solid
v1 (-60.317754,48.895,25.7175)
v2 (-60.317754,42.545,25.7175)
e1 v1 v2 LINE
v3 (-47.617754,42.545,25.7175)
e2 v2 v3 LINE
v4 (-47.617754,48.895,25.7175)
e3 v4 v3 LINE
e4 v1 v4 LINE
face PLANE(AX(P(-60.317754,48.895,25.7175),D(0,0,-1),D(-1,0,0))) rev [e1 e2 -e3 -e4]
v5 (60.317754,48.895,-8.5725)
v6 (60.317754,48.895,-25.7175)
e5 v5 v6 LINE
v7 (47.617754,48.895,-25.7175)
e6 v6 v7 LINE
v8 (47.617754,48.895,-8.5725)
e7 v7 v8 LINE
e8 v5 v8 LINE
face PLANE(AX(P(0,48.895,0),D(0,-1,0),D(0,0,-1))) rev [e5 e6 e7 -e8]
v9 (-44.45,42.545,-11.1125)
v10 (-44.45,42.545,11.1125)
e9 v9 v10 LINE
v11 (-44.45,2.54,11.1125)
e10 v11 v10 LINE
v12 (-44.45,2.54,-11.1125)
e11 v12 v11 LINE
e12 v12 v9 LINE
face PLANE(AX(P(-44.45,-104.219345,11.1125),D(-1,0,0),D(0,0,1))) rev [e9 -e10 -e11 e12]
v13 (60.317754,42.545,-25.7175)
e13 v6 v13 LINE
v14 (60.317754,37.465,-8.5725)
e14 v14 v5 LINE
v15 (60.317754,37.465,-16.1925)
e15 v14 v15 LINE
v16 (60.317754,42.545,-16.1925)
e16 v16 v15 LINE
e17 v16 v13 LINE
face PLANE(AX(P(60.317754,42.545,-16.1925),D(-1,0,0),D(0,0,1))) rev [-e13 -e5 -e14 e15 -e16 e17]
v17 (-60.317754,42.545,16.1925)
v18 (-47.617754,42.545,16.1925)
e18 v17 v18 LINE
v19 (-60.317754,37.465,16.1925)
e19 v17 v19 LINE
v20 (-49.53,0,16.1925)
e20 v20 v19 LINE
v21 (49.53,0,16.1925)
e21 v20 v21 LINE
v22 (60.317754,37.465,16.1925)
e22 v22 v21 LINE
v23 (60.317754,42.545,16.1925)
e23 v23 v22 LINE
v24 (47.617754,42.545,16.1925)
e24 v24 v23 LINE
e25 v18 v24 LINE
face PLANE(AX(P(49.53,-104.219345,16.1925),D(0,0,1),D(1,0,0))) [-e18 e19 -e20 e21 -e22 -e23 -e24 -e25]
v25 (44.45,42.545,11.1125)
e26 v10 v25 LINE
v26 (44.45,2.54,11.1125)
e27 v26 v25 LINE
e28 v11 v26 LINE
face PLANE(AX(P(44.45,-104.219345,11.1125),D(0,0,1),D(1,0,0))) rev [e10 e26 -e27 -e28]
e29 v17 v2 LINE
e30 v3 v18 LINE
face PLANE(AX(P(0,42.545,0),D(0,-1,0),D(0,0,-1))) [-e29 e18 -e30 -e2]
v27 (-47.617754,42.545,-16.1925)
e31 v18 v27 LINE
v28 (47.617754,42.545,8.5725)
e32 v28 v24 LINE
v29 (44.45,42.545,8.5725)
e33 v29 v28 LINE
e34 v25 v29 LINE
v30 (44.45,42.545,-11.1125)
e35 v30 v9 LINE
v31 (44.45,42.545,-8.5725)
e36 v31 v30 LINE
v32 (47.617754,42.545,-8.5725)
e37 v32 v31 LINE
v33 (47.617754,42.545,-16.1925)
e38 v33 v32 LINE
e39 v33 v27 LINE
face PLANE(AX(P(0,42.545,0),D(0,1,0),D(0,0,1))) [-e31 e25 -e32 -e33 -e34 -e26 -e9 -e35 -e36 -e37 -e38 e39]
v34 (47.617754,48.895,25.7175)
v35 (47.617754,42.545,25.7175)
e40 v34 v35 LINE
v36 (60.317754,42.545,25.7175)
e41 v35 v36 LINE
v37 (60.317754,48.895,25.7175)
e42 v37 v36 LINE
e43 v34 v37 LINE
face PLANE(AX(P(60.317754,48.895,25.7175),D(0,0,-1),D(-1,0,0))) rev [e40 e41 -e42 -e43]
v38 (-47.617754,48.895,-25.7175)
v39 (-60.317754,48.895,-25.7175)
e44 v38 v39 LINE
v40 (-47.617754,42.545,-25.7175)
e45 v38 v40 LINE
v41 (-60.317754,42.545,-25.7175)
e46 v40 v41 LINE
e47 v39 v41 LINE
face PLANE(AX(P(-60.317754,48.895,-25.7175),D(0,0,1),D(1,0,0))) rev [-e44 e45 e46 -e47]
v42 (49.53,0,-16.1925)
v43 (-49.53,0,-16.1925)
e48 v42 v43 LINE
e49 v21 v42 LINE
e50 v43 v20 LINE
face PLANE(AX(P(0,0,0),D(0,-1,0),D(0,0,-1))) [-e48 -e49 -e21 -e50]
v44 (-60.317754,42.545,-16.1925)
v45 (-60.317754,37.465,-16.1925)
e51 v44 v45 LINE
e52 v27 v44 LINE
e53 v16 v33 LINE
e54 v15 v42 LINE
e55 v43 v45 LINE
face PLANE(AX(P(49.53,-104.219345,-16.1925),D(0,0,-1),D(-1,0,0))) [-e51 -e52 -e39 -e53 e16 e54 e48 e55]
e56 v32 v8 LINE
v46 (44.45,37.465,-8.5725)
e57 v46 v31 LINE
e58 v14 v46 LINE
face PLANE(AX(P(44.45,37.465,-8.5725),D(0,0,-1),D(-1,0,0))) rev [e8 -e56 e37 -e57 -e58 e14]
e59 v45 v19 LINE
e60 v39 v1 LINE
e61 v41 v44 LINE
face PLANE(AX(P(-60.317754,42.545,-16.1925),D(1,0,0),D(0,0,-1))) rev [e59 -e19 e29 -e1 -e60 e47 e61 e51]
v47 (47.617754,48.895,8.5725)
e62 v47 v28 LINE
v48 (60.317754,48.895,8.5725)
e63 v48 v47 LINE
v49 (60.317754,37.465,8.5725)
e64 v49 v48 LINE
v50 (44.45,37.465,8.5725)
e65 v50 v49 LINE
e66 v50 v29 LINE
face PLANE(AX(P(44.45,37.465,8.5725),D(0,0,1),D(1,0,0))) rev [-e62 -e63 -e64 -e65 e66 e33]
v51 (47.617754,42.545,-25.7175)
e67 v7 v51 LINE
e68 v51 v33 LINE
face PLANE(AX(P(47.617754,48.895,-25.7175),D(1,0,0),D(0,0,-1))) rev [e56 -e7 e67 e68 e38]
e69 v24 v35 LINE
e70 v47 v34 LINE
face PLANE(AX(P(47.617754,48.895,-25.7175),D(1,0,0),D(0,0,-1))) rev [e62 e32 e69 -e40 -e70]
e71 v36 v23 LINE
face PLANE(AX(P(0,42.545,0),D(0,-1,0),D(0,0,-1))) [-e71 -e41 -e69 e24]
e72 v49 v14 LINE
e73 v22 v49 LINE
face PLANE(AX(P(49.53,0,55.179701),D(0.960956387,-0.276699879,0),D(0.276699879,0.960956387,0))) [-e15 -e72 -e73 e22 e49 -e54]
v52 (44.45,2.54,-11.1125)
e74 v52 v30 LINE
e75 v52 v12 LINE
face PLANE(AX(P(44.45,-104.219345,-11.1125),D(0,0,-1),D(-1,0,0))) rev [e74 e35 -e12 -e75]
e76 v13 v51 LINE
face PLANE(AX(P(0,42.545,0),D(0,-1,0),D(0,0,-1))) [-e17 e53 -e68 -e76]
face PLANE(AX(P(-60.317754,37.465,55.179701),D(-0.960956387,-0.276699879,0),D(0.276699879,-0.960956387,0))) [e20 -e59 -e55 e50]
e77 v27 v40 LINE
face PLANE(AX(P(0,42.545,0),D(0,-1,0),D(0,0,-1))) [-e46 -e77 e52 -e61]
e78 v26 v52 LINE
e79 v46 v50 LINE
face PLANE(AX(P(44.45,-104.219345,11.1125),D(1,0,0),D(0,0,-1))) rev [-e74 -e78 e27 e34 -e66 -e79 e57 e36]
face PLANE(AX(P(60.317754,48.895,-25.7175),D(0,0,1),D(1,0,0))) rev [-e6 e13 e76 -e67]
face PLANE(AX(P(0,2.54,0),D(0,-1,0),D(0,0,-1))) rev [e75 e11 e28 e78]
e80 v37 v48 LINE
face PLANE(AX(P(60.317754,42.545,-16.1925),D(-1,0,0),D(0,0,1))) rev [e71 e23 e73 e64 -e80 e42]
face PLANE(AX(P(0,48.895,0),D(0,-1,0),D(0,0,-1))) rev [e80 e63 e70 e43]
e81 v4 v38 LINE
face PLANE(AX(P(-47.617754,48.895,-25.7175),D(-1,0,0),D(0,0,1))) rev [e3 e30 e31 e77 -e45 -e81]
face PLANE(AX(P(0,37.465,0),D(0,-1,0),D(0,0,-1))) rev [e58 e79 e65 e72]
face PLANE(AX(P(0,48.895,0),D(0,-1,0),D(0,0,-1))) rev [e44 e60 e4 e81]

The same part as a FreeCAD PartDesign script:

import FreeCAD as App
import Part
import Sketcher
from FreeCAD import Vector
Q = App.Units.Quantity

doc = App.newDocument("Part")
params = doc.addObject("Spreadsheet::Sheet", "Params")
for row, (alias, value) in enumerate([
    ("sketch1_width", "3.5 in"),
    ("sketch1_height", "0.875 in"),
    ("pad1_length", "0.1 in"),
    ("sketch2_width", "3.9 in"),
    ("sketch2_width2", "3.5 in"),
    ("sketch2_height", "1.275 in"),
    ("pad2_length", "1.375 in"),
    ("pad2_length2", "0.1 in"),
    ("sketch3_width", "3.5 in"),
    ("sketch3_height", "1.275 in"),
    ("pad3_length", "0.2 in"),
    ("sketch4_width", "0.5 in"),
    ("sketch4_height", "2.025 in"),
    ("pad4_length", "0.25 in"),
    ("sketch5_height", "1.475 in"),
    ("pad5_length", "1.275 in"),
    ("sketch6_height", "0.675 in"),
    ("pocket1_length", "0.45 in"),
], start=1):
    params.set(f"A{row}", alias)
    params.set(f"B{row}", "=" + value)
    params.setAlias(f"B{row}", alias)

body = doc.addObject("PartDesign::Body", "Body")

sketch1 = doc.addObject("Sketcher::SketchObject", "Sketch")
body.addObject(sketch1)
sketch1.AttachmentSupport = (doc.XZ_Plane, [""])
sketch1.MapMode = "FlatFace"
sketch1.addGeometry(Part.LineSegment(Vector(-44.45, -11.1125, 0), Vector(-44.45, 11.1125, 0)), False)
sketch1.addGeometry(Part.LineSegment(Vector(-44.45, 11.1125, 0), Vector(44.45, 11.1125, 0)), False)
sketch1.addGeometry(Part.LineSegment(Vector(44.45, 11.1125, 0), Vector(44.45, -11.1125, 0)), False)
sketch1.addGeometry(Part.LineSegment(Vector(44.45, -11.1125, 0), Vector(-44.45, -11.1125, 0)), False)
sketch1.addConstraint(Sketcher.Constraint("Coincident", 0, 2, 1, 1))
sketch1.addConstraint(Sketcher.Constraint("Coincident", 1, 2, 2, 1))
sketch1.addConstraint(Sketcher.Constraint("Coincident", 2, 2, 3, 1))
sketch1.addConstraint(Sketcher.Constraint("Coincident", 3, 2, 0, 1))
sketch1.addConstraint(Sketcher.Constraint("Vertical", 0))
sketch1.addConstraint(Sketcher.Constraint("Horizontal", 1))
sketch1.addConstraint(Sketcher.Constraint("Vertical", 2))
sketch1.addConstraint(Sketcher.Constraint("Horizontal", 3))
sketch1.addConstraint(Sketcher.Constraint("Symmetric", 0, 2, 2, 2, -1, 1))
sketch1.addConstraint(Sketcher.Constraint("DistanceX", 1, 1, 1, 2, Q("3.5 in")))
sketch1.addConstraint(Sketcher.Constraint("DistanceY", 0, 1, 0, 2, Q("0.875 in")))
sketch1.setExpression("Constraints[9]", "Params.sketch1_width")
sketch1.setExpression("Constraints[10]", "Params.sketch1_height")
pad1 = doc.addObject("PartDesign::Pad", "Pad")
body.addObject(pad1)
pad1.Profile = sketch1
pad1.setExpression("Length", "Params.pad1_length")
pad1.Reversed = True

sketch2 = doc.addObject("Sketcher::SketchObject", "Sketch001")
body.addObject(sketch2)
sketch2.AttachmentSupport = (doc.XZ_Plane, [""])
sketch2.MapMode = "FlatFace"
sketch2.AttachmentOffset = App.Placement(Vector(0, 0, -0.1 * 25.4), App.Rotation())
sketch2.addGeometry(Part.LineSegment(Vector(-49.53, -16.1925, 0), Vector(-49.53, 16.1925, 0)), False)
sketch2.addGeometry(Part.LineSegment(Vector(-49.53, 16.1925, 0), Vector(49.53, 16.1925, 0)), False)
sketch2.addGeometry(Part.LineSegment(Vector(49.53, 16.1925, 0), Vector(49.53, -16.1925, 0)), False)
sketch2.addGeometry(Part.LineSegment(Vector(49.53, -16.1925, 0), Vector(-49.53, -16.1925, 0)), False)
sketch2.addGeometry(Part.LineSegment(Vector(44.45, 11.1125, 0), Vector(-44.45, 11.1125, 0)), False)
sketch2.addGeometry(Part.LineSegment(Vector(-44.45, 11.1125, 0), Vector(-44.45, -11.1125, 0)), False)
sketch2.addGeometry(Part.LineSegment(Vector(-44.45, -11.1125, 0), Vector(44.45, -11.1125, 0)), False)
sketch2.addGeometry(Part.LineSegment(Vector(44.45, -11.1125, 0), Vector(44.45, 11.1125, 0)), False)
sketch2.addConstraint(Sketcher.Constraint("Coincident", 0, 2, 1, 1))
sketch2.addConstraint(Sketcher.Constraint("Coincident", 1, 2, 2, 1))
sketch2.addConstraint(Sketcher.Constraint("Coincident", 2, 2, 3, 1))
sketch2.addConstraint(Sketcher.Constraint("Coincident", 3, 2, 0, 1))
sketch2.addConstraint(Sketcher.Constraint("Coincident", 4, 2, 5, 1))
sketch2.addConstraint(Sketcher.Constraint("Coincident", 5, 2, 6, 1))
sketch2.addConstraint(Sketcher.Constraint("Coincident", 6, 2, 7, 1))
sketch2.addConstraint(Sketcher.Constraint("Coincident", 7, 2, 4, 1))
sketch2.addConstraint(Sketcher.Constraint("Vertical", 0))
sketch2.addConstraint(Sketcher.Constraint("Horizontal", 1))
sketch2.addConstraint(Sketcher.Constraint("Vertical", 2))
sketch2.addConstraint(Sketcher.Constraint("Horizontal", 3))
sketch2.addConstraint(Sketcher.Constraint("Horizontal", 4))
sketch2.addConstraint(Sketcher.Constraint("Vertical", 5))
sketch2.addConstraint(Sketcher.Constraint("Horizontal", 6))
sketch2.addConstraint(Sketcher.Constraint("Vertical", 7))
sketch2.addConstraint(Sketcher.Constraint("Symmetric", 0, 2, 2, 2, -1, 1))
sketch2.addConstraint(Sketcher.Constraint("Symmetric", 4, 2, 6, 2, -1, 1))
sketch2.addConstraint(Sketcher.Constraint("DistanceX", 1, 1, 1, 2, Q("3.9 in")))
sketch2.addConstraint(Sketcher.Constraint("DistanceX", 4, 2, 4, 1, Q("3.5 in")))
sketch2.addConstraint(Sketcher.Constraint("DistanceY", 4, 2, 0, 2, Q("0.2 in")))
sketch2.addConstraint(Sketcher.Constraint("DistanceY", 0, 1, 0, 2, Q("1.275 in")))
sketch2.setExpression("Constraints[18]", "Params.sketch2_width")
sketch2.setExpression("Constraints[19]", "Params.sketch2_width2")
sketch2.setExpression("Constraints[21]", "Params.sketch2_height")
pad2 = doc.addObject("PartDesign::Pad", "Pad001")
body.addObject(pad2)
pad2.Profile = sketch2
pad2.Type = "TwoLengths"
pad2.setExpression("Length", "Params.pad2_length")
pad2.setExpression("Length2", "Params.pad2_length2")
pad2.Reversed = True

sketch3 = doc.addObject("Sketcher::SketchObject", "Sketch002")
body.addObject(sketch3)
sketch3.AttachmentSupport = (doc.XZ_Plane, [""])
sketch3.MapMode = "FlatFace"
sketch3.AttachmentOffset = App.Placement(Vector(0, 0, -1.475 * 25.4), App.Rotation())
sketch3.addGeometry(Part.LineSegment(Vector(-60.317754, -16.1925, 0), Vector(-60.317754, 16.1925, 0)), False)
sketch3.addGeometry(Part.LineSegment(Vector(-60.317754, 16.1925, 0), Vector(60.317754, 16.1925, 0)), False)
sketch3.addGeometry(Part.LineSegment(Vector(60.317754, 16.1925, 0), Vector(60.317754, -16.1925, 0)), False)
sketch3.addGeometry(Part.LineSegment(Vector(60.317754, -16.1925, 0), Vector(-60.317754, -16.1925, 0)), False)
sketch3.addGeometry(Part.LineSegment(Vector(44.45, 11.1125, 0), Vector(-44.45, 11.1125, 0)), False)
sketch3.addGeometry(Part.LineSegment(Vector(-44.45, 11.1125, 0), Vector(-44.45, -11.1125, 0)), False)
sketch3.addGeometry(Part.LineSegment(Vector(-44.45, -11.1125, 0), Vector(44.45, -11.1125, 0)), False)
sketch3.addGeometry(Part.LineSegment(Vector(44.45, -11.1125, 0), Vector(44.45, 11.1125, 0)), False)
sketch3.addConstraint(Sketcher.Constraint("Coincident", 0, 2, 1, 1))
sketch3.addConstraint(Sketcher.Constraint("Coincident", 1, 2, 2, 1))
sketch3.addConstraint(Sketcher.Constraint("Coincident", 2, 2, 3, 1))
sketch3.addConstraint(Sketcher.Constraint("Coincident", 3, 2, 0, 1))
sketch3.addConstraint(Sketcher.Constraint("Coincident", 4, 2, 5, 1))
sketch3.addConstraint(Sketcher.Constraint("Coincident", 5, 2, 6, 1))
sketch3.addConstraint(Sketcher.Constraint("Coincident", 6, 2, 7, 1))
sketch3.addConstraint(Sketcher.Constraint("Coincident", 7, 2, 4, 1))
sketch3.addConstraint(Sketcher.Constraint("Vertical", 0))
sketch3.addConstraint(Sketcher.Constraint("Horizontal", 1))
sketch3.addConstraint(Sketcher.Constraint("Vertical", 2))
sketch3.addConstraint(Sketcher.Constraint("Horizontal", 3))
sketch3.addConstraint(Sketcher.Constraint("Horizontal", 4))
sketch3.addConstraint(Sketcher.Constraint("Vertical", 5))
sketch3.addConstraint(Sketcher.Constraint("Horizontal", 6))
sketch3.addConstraint(Sketcher.Constraint("Vertical", 7))
sketch3.addConstraint(Sketcher.Constraint("Symmetric", 0, 2, 2, 2, -1, 1))
sketch3.addConstraint(Sketcher.Constraint("Symmetric", 4, 2, 6, 2, -1, 1))
sketch3.addConstraint(Sketcher.Constraint("DistanceX", 4, 2, 4, 1, Q("3.5 in")))
sketch3.addConstraint(Sketcher.Constraint("DistanceY", 4, 2, 0, 2, Q("0.2 in")))
sketch3.addConstraint(Sketcher.Constraint("DistanceY", 0, 1, 0, 2, Q("1.275 in")))
sketch3.addConstraint(Sketcher.Constraint("DistanceX", 1, 1, 1, 2, 120.635508))
sketch3.setExpression("Constraints[18]", "Params.sketch3_width")
sketch3.setExpression("Constraints[20]", "Params.sketch3_height")
pad3 = doc.addObject("PartDesign::Pad", "Pad002")
body.addObject(pad3)
pad3.Profile = sketch3
pad3.setExpression("Length", "Params.pad3_length")
pad3.Reversed = True

sketch4 = doc.addObject("Sketcher::SketchObject", "Sketch003")
body.addObject(sketch4)
sketch4.AttachmentSupport = (doc.XZ_Plane, [""])
sketch4.MapMode = "FlatFace"
sketch4.AttachmentOffset = App.Placement(Vector(0, 0, -1.675 * 25.4), App.Rotation())
sketch4.addGeometry(Part.LineSegment(Vector(47.617754, -25.7175, 0), Vector(47.617754, 25.7175, 0)), False)
sketch4.addGeometry(Part.LineSegment(Vector(47.617754, 25.7175, 0), Vector(60.317754, 25.7175, 0)), False)
sketch4.addGeometry(Part.LineSegment(Vector(60.317754, 25.7175, 0), Vector(60.317754, -25.7175, 0)), False)
sketch4.addGeometry(Part.LineSegment(Vector(60.317754, -25.7175, 0), Vector(47.617754, -25.7175, 0)), False)
sketch4.addGeometry(Part.LineSegment(Vector(-60.317754, -25.7175, 0), Vector(-60.317754, 25.7175, 0)), False)
sketch4.addGeometry(Part.LineSegment(Vector(-60.317754, 25.7175, 0), Vector(-47.617754, 25.7175, 0)), False)
sketch4.addGeometry(Part.LineSegment(Vector(-47.617754, 25.7175, 0), Vector(-47.617754, -25.7175, 0)), False)
sketch4.addGeometry(Part.LineSegment(Vector(-47.617754, -25.7175, 0), Vector(-60.317754, -25.7175, 0)), False)
sketch4.addConstraint(Sketcher.Constraint("Coincident", 0, 2, 1, 1))
sketch4.addConstraint(Sketcher.Constraint("Coincident", 1, 2, 2, 1))
sketch4.addConstraint(Sketcher.Constraint("Coincident", 2, 2, 3, 1))
sketch4.addConstraint(Sketcher.Constraint("Coincident", 3, 2, 0, 1))
sketch4.addConstraint(Sketcher.Constraint("Coincident", 4, 2, 5, 1))
sketch4.addConstraint(Sketcher.Constraint("Coincident", 5, 2, 6, 1))
sketch4.addConstraint(Sketcher.Constraint("Coincident", 6, 2, 7, 1))
sketch4.addConstraint(Sketcher.Constraint("Coincident", 7, 2, 4, 1))
sketch4.addConstraint(Sketcher.Constraint("Vertical", 0))
sketch4.addConstraint(Sketcher.Constraint("Horizontal", 1))
sketch4.addConstraint(Sketcher.Constraint("Vertical", 2))
sketch4.addConstraint(Sketcher.Constraint("Horizontal", 3))
sketch4.addConstraint(Sketcher.Constraint("Vertical", 4))
sketch4.addConstraint(Sketcher.Constraint("Horizontal", 5))
sketch4.addConstraint(Sketcher.Constraint("Vertical", 6))
sketch4.addConstraint(Sketcher.Constraint("Horizontal", 7))
sketch4.addConstraint(Sketcher.Constraint("Symmetric", 2, 2, 4, 2, -1, 1))
sketch4.addConstraint(Sketcher.Constraint("Symmetric", 0, 2, 6, 2, -1, 1))
sketch4.addConstraint(Sketcher.Constraint("Horizontal", 1, 2, 4, 2))
sketch4.addConstraint(Sketcher.Constraint("DistanceX", 1, 1, 1, 2, Q("0.5 in")))
sketch4.addConstraint(Sketcher.Constraint("DistanceY", 0, 1, 0, 2, Q("2.025 in")))
sketch4.addConstraint(Sketcher.Constraint("DistanceX", -1, 1, 0, 2, 47.617754))
sketch4.setExpression("Constraints[19]", "Params.sketch4_width")
sketch4.setExpression("Constraints[20]", "Params.sketch4_height")
pad4 = doc.addObject("PartDesign::Pad", "Pad003")
body.addObject(pad4)
pad4.Profile = sketch4
pad4.setExpression("Length", "Params.pad4_length")
pad4.Reversed = True

sketch5 = doc.addObject("Sketcher::SketchObject", "Sketch004")
body.addObject(sketch5)
sketch5.AttachmentSupport = (doc.XY_Plane, [""])
sketch5.MapMode = "FlatFace"
sketch5.AttachmentOffset = App.Placement(Vector(0, 0, -0.6375 * 25.4), App.Rotation())
sketch5.addGeometry(Part.LineSegment(Vector(60.317754, 37.465, 0), Vector(49.53, 0, 0)), False)
sketch5.addGeometry(Part.LineSegment(Vector(49.53, 0, 0), Vector(49.53, 37.465, 0)), False)
sketch5.addGeometry(Part.LineSegment(Vector(49.53, 37.465, 0), Vector(60.317754, 37.465, 0)), False)
sketch5.addGeometry(Part.LineSegment(Vector(-60.317754, 37.465, 0), Vector(-49.53, 37.465, 0)), False)
sketch5.addGeometry(Part.LineSegment(Vector(-49.53, 37.465, 0), Vector(-49.53, 0, 0)), False)
sketch5.addGeometry(Part.LineSegment(Vector(-49.53, 0, 0), Vector(-60.317754, 37.465, 0)), False)
sketch5.addConstraint(Sketcher.Constraint("Coincident", 0, 2, 1, 1))
sketch5.addConstraint(Sketcher.Constraint("Coincident", 1, 2, 2, 1))
sketch5.addConstraint(Sketcher.Constraint("Coincident", 2, 2, 0, 1))
sketch5.addConstraint(Sketcher.Constraint("Coincident", 3, 2, 4, 1))
sketch5.addConstraint(Sketcher.Constraint("Coincident", 4, 2, 5, 1))
sketch5.addConstraint(Sketcher.Constraint("Coincident", 5, 2, 3, 1))
sketch5.addConstraint(Sketcher.Constraint("Vertical", 1))
sketch5.addConstraint(Sketcher.Constraint("Horizontal", 2))
sketch5.addConstraint(Sketcher.Constraint("Horizontal", 3))
sketch5.addConstraint(Sketcher.Constraint("Vertical", 4))
sketch5.addConstraint(Sketcher.Constraint("Symmetric", 0, 2, 4, 2, -1, 1))
sketch5.addConstraint(Sketcher.Constraint("Symmetric", 2, 2, 5, 2, -2))
sketch5.addConstraint(Sketcher.Constraint("PointOnObject", 0, 2, -1))
sketch5.addConstraint(Sketcher.Constraint("DistanceX", 3, 2, 1, 2, Q("3.9 in")))
sketch5.addConstraint(Sketcher.Constraint("DistanceY", 1, 1, 1, 2, Q("1.475 in")))
sketch5.addConstraint(Sketcher.Constraint("Distance", 0, 38.987201))
sketch5.setExpression("Constraints[14]", "Params.sketch5_height")
pad5 = doc.addObject("PartDesign::Pad", "Pad004")
body.addObject(pad5)
pad5.Profile = sketch5
pad5.setExpression("Length", "Params.pad5_length")

sketch6 = doc.addObject("Sketcher::SketchObject", "Sketch005")
body.addObject(sketch6)
sketch6.AttachmentSupport = (doc.XZ_Plane, [""])
sketch6.MapMode = "FlatFace"
sketch6.AttachmentOffset = App.Placement(Vector(0, 0, -1.925 * 25.4), App.Rotation())
sketch6.addGeometry(Part.LineSegment(Vector(44.45, -8.5725, 0), Vector(44.45, 8.5725, 0)), False)
sketch6.addGeometry(Part.LineSegment(Vector(44.45, 8.5725, 0), Vector(60.317754, 8.5725, 0)), False)
sketch6.addGeometry(Part.LineSegment(Vector(60.317754, 8.5725, 0), Vector(60.317754, -8.5725, 0)), False)
sketch6.addGeometry(Part.LineSegment(Vector(60.317754, -8.5725, 0), Vector(44.45, -8.5725, 0)), False)
sketch6.addConstraint(Sketcher.Constraint("Coincident", 0, 2, 1, 1))
sketch6.addConstraint(Sketcher.Constraint("Coincident", 1, 2, 2, 1))
sketch6.addConstraint(Sketcher.Constraint("Coincident", 2, 2, 3, 1))
sketch6.addConstraint(Sketcher.Constraint("Coincident", 3, 2, 0, 1))
sketch6.addConstraint(Sketcher.Constraint("Vertical", 0))
sketch6.addConstraint(Sketcher.Constraint("Horizontal", 1))
sketch6.addConstraint(Sketcher.Constraint("Vertical", 2))
sketch6.addConstraint(Sketcher.Constraint("Horizontal", 3))
sketch6.addConstraint(Sketcher.Constraint("DistanceY", 0, 1, 0, 2, Q("0.675 in")))
sketch6.addConstraint(Sketcher.Constraint("DistanceX", -1, 1, 0, 2, Q("1.75 in")))
sketch6.addConstraint(Sketcher.Constraint("DistanceY", -1, 1, 0, 2, Q("0.3375 in")))
sketch6.addConstraint(Sketcher.Constraint("DistanceX", 1, 1, 1, 2, 15.867754))
sketch6.setExpression("Constraints[8]", "Params.sketch6_height")
pocket1 = doc.addObject("PartDesign::Pocket", "Pocket")
body.addObject(pocket1)
pocket1.Profile = sketch6
pocket1.setExpression("Length", "Params.pocket1_length")
pocket1.Reversed = True

doc.recompute()
